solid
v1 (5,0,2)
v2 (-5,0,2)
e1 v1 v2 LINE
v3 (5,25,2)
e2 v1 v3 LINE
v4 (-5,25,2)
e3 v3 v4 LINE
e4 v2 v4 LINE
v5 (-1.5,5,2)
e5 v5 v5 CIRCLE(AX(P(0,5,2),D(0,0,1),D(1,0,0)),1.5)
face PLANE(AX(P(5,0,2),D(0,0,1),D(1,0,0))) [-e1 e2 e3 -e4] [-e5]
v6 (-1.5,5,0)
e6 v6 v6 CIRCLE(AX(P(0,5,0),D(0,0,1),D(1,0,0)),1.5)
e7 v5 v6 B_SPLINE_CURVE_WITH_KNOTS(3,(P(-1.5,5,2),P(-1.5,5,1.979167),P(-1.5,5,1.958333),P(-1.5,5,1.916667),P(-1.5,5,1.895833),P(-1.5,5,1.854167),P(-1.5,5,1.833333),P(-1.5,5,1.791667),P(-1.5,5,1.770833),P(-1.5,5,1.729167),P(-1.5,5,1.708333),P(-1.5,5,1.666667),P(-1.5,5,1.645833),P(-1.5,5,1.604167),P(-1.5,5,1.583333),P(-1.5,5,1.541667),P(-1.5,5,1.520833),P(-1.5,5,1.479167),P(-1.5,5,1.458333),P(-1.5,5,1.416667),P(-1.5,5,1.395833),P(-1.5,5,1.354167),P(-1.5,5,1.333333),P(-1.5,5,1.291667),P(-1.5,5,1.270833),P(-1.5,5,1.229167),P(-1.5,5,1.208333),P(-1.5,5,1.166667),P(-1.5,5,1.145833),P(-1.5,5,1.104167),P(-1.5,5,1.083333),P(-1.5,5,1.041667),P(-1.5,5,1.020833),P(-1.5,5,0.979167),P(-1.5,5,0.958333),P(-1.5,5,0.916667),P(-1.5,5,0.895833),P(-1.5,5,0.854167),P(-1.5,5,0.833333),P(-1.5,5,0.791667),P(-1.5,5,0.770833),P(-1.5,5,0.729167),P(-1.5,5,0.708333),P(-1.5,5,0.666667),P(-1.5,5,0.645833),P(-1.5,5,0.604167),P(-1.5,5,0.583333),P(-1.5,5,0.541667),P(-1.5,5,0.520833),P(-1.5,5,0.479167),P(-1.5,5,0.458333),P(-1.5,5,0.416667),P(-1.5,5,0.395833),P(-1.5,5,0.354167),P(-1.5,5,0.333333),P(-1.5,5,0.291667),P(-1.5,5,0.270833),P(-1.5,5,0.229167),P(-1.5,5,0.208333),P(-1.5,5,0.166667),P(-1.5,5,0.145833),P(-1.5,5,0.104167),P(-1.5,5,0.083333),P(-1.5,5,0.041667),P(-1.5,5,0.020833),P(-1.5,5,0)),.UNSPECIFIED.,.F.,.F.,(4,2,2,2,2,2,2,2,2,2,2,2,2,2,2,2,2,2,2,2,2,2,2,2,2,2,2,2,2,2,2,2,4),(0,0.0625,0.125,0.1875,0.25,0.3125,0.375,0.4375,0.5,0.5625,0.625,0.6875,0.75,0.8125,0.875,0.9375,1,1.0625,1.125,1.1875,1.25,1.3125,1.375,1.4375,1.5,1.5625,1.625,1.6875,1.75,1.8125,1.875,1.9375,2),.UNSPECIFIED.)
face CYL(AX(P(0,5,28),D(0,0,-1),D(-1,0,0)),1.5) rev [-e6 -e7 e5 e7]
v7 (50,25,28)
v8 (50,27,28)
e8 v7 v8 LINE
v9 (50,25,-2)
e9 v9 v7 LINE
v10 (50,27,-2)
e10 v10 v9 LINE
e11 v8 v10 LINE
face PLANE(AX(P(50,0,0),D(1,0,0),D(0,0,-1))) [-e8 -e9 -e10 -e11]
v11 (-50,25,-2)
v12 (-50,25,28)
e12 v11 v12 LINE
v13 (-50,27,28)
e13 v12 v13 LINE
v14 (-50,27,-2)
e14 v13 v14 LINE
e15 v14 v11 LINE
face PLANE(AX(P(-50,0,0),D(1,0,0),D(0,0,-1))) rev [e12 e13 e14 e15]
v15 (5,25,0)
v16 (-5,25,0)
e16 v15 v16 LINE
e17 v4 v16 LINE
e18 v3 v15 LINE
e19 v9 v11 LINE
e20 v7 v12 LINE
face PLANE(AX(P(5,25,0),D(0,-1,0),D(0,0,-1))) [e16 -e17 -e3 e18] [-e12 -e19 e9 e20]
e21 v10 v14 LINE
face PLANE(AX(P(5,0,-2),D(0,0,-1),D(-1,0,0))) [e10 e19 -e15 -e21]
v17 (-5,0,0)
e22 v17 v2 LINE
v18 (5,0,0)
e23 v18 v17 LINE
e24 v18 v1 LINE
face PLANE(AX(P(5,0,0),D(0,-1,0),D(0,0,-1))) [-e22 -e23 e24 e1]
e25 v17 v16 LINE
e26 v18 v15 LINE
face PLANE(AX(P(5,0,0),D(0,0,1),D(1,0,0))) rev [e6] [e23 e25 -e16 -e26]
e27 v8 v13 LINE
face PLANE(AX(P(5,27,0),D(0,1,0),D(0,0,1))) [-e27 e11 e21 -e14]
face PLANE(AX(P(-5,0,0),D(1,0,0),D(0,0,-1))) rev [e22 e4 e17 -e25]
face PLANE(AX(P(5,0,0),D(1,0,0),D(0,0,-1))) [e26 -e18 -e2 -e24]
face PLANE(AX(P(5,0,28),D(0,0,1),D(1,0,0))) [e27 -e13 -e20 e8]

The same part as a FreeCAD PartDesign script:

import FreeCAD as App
import Part
import Sketcher
Q = App.Units.Quantity


def add_polygon(sketch, points):
    """Adds a closed chain of lines whose ends are joined by coincident constraints."""
    first, n = sketch.GeometryCount, len(points)
    for a, b in zip(points, points[1:] + points[:1]):
        sketch.addGeometry(Part.LineSegment(App.Vector(*a, 0), App.Vector(*b, 0)), False)
    for i in range(n):
        sketch.addConstraint(Sketcher.Constraint("Coincident", first + i, 2, first + (i + 1) % n, 1))

doc = App.newDocument("Part")
body = doc.addObject("PartDesign::Body", "Body")

# Sketch on YZ plane
sketch1 = body.newObject("Sketcher::SketchObject", "Sketch")
sketch1.AttachmentSupport = (doc.getObject("YZ_Plane"), [""])
sketch1.MapMode = "FlatFace"
add_polygon(sketch1, [(25, 2), (0, 2), (0, 0), (25, 0), (25, -2), (27, -2), (27, 28), (25, 28)])  # lines 0-7
sketch1.addConstraint(Sketcher.Constraint("Horizontal", 0))
sketch1.addConstraint(Sketcher.Constraint("Vertical", 1))
sketch1.addConstraint(Sketcher.Constraint("Horizontal", 2))
sketch1.addConstraint(Sketcher.Constraint("Vertical", 3))
sketch1.addConstraint(Sketcher.Constraint("Horizontal", 4))
sketch1.addConstraint(Sketcher.Constraint("Vertical", 5))
sketch1.addConstraint(Sketcher.Constraint("Horizontal", 6))
sketch1.addConstraint(Sketcher.Constraint("Vertical", 7))
sketch1.addConstraint(Sketcher.Constraint("Coincident", 1, 2, -1, 1))
sketch1.addConstraint(Sketcher.Constraint("Symmetric", 3, 2, 7, 2, -1))
sketch1.addConstraint(Sketcher.Constraint("Equal", 6, 1))
sketch1.addConstraint(Sketcher.Constraint("DistanceX", 0, 2, 0, 1, Q("25 mm")))
sketch1.addConstraint(Sketcher.Constraint("DistanceX", 4, 1, 4, 2, Q("2 mm")))
sketch1.addConstraint(Sketcher.Constraint("DistanceY", 5, 1, 5, 2, Q("30 mm")))
pad1 = body.newObject("PartDesign::Pad", "Pad")
pad1.Profile = sketch1
pad1.Length = 10
pad1.Midplane = True

# Sketch on YZ plane
sketch2 = body.newObject("Sketcher::SketchObject", "Sketch001")
sketch2.AttachmentSupport = (doc.getObject("YZ_Plane"), [""])
sketch2.MapMode = "FlatFace"
add_polygon(sketch2, [(25, -2), (27, -2), (27, 28), (25, 28)])  # lines 0-3
sketch2.addConstraint(Sketcher.Constraint("Horizontal", 0))
sketch2.addConstraint(Sketcher.Constraint("Vertical", 1))
sketch2.addConstraint(Sketcher.Constraint("Horizontal", 2))
sketch2.addConstraint(Sketcher.Constraint("Vertical", 3))
sketch2.addConstraint(Sketcher.Constraint("DistanceX", 0, 1, 0, 2, Q("2 mm")))
sketch2.addConstraint(Sketcher.Constraint("DistanceY", 1, 1, 1, 2, Q("30 mm")))
sketch2.addConstraint(Sketcher.Constraint("DistanceX", -1, 1, 0, 2, Q("27 mm")))
sketch2.addConstraint(Sketcher.Constraint("DistanceY", 0, 2, -1, 1, Q("2 mm")))
pad2 = body.newObject("PartDesign::Pad", "Pad001")
pad2.Profile = sketch2
pad2.Length = 100
pad2.Midplane = True

# Sketch on XY plane
sketch3 = body.newObject("Sketcher::SketchObject", "Sketch002")
sketch3.AttachmentSupport = (doc.getObject("XY_Plane"), [""])
sketch3.MapMode = "FlatFace"
sketch3.addGeometry(Part.Circle(App.Vector(0, 5, 0), App.Vector(0, 0, 1), 1.5), False)
sketch3.addConstraint(Sketcher.Constraint("PointOnObject", 0, 3, -2))
sketch3.addConstraint(Sketcher.Constraint("Diameter", 0, Q("3 mm")))
sketch3.addConstraint(Sketcher.Constraint("DistanceY", -1, 1, 0, 3, Q("5 mm")))
pocket1 = body.newObject("PartDesign::Pocket", "Pocket")
pocket1.Profile = sketch3
pocket1.Type = "ThroughAll"
pocket1.Midplane = True

doc.recompute()
